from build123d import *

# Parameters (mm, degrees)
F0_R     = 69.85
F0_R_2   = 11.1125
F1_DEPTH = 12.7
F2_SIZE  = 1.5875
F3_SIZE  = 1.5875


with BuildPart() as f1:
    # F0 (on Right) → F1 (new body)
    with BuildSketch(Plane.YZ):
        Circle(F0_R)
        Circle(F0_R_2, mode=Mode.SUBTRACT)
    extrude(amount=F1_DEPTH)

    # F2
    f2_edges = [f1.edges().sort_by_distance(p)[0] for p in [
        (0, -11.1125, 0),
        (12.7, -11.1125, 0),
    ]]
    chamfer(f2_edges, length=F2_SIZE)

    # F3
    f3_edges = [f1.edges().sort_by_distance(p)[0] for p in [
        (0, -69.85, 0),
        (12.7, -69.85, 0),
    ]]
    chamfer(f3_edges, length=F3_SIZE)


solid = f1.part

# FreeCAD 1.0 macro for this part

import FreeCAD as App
import Part
import Sketcher

V = App.Vector
Q = App.Units.Quantity


def edges_at(feature, points):
    """Names of the edges that pass closest to the given points."""
    edges = feature.Shape.Edges
    near = lambda p: min(range(len(edges)), key=lambda i: edges[i].distToShape(Part.Vertex(*p))[0])
    return sorted({f"Edge{near(p) + 1}" for p in points})

doc = App.newDocument("Part")
params = doc.addObject("Spreadsheet::Sheet", "Params")
for row, (alias, value) in enumerate([
    ("sketch1_diameter", "5.5 in"),
    ("sketch1_diameter2", "0.875 in"),
    ("pad1_length", "0.5 in"),
    ("chamfer_size", "0.0625 in"),
    ("chamfer2_size", "0.0625 in"),
], start=1):
    params.set(f"A{row}", alias)
    params.set(f"B{row}", "=" + value)
    params.setAlias(f"B{row}", alias)

body = doc.addObject("PartDesign::Body", "Body")

# Sketch on YZ plane
sketch1 = body.newObject("Sketcher::SketchObject", "Sketch")
sketch1.AttachmentSupport = (doc.getObject("YZ_Plane"), [""])
sketch1.MapMode = "FlatFace"
sketch1.addGeometry([
    Part.Circle(V(0, 0, 0), V(0, 0, 1), 69.85),
    Part.Circle(V(0, 0, 0), V(0, 0, 1), 11.1125),
], False)
sketch1.addConstraint([
    Sketcher.Constraint("Coincident", 0, 3, -1, 1),
    Sketcher.Constraint("Coincident", 1, 3, -1, 1),
    Sketcher.Constraint("Diameter", 0, Q("5.5 in")),
    Sketcher.Constraint("Diameter", 1, Q("0.875 in")),
])
sketch1.setExpression("Constraints[2]", "Params.sketch1_diameter")
sketch1.setExpression("Constraints[3]", "Params.sketch1_diameter2")
pad1 = body.newObject("PartDesign::Pad", "Pad")
pad1.Profile = sketch1
pad1.setExpression("Length", "Params.pad1_length")
doc.recompute()

chamfer = body.newObject("PartDesign::Chamfer", "Chamfer")
chamfer.Base = (pad1, edges_at(pad1, [(0, -11.113, 0), (12.7, -11.113, 0)]))
chamfer.setExpression("Size", "Params.chamfer_size")
doc.recompute()

chamfer2 = body.newObject("PartDesign::Chamfer", "Chamfer001")
chamfer2.Base = (chamfer, edges_at(chamfer, [(0, -69.85, 0), (12.7, -69.85, 0)]))
chamfer2.setExpression("Size", "Params.chamfer2_size")

doc.recompute()
